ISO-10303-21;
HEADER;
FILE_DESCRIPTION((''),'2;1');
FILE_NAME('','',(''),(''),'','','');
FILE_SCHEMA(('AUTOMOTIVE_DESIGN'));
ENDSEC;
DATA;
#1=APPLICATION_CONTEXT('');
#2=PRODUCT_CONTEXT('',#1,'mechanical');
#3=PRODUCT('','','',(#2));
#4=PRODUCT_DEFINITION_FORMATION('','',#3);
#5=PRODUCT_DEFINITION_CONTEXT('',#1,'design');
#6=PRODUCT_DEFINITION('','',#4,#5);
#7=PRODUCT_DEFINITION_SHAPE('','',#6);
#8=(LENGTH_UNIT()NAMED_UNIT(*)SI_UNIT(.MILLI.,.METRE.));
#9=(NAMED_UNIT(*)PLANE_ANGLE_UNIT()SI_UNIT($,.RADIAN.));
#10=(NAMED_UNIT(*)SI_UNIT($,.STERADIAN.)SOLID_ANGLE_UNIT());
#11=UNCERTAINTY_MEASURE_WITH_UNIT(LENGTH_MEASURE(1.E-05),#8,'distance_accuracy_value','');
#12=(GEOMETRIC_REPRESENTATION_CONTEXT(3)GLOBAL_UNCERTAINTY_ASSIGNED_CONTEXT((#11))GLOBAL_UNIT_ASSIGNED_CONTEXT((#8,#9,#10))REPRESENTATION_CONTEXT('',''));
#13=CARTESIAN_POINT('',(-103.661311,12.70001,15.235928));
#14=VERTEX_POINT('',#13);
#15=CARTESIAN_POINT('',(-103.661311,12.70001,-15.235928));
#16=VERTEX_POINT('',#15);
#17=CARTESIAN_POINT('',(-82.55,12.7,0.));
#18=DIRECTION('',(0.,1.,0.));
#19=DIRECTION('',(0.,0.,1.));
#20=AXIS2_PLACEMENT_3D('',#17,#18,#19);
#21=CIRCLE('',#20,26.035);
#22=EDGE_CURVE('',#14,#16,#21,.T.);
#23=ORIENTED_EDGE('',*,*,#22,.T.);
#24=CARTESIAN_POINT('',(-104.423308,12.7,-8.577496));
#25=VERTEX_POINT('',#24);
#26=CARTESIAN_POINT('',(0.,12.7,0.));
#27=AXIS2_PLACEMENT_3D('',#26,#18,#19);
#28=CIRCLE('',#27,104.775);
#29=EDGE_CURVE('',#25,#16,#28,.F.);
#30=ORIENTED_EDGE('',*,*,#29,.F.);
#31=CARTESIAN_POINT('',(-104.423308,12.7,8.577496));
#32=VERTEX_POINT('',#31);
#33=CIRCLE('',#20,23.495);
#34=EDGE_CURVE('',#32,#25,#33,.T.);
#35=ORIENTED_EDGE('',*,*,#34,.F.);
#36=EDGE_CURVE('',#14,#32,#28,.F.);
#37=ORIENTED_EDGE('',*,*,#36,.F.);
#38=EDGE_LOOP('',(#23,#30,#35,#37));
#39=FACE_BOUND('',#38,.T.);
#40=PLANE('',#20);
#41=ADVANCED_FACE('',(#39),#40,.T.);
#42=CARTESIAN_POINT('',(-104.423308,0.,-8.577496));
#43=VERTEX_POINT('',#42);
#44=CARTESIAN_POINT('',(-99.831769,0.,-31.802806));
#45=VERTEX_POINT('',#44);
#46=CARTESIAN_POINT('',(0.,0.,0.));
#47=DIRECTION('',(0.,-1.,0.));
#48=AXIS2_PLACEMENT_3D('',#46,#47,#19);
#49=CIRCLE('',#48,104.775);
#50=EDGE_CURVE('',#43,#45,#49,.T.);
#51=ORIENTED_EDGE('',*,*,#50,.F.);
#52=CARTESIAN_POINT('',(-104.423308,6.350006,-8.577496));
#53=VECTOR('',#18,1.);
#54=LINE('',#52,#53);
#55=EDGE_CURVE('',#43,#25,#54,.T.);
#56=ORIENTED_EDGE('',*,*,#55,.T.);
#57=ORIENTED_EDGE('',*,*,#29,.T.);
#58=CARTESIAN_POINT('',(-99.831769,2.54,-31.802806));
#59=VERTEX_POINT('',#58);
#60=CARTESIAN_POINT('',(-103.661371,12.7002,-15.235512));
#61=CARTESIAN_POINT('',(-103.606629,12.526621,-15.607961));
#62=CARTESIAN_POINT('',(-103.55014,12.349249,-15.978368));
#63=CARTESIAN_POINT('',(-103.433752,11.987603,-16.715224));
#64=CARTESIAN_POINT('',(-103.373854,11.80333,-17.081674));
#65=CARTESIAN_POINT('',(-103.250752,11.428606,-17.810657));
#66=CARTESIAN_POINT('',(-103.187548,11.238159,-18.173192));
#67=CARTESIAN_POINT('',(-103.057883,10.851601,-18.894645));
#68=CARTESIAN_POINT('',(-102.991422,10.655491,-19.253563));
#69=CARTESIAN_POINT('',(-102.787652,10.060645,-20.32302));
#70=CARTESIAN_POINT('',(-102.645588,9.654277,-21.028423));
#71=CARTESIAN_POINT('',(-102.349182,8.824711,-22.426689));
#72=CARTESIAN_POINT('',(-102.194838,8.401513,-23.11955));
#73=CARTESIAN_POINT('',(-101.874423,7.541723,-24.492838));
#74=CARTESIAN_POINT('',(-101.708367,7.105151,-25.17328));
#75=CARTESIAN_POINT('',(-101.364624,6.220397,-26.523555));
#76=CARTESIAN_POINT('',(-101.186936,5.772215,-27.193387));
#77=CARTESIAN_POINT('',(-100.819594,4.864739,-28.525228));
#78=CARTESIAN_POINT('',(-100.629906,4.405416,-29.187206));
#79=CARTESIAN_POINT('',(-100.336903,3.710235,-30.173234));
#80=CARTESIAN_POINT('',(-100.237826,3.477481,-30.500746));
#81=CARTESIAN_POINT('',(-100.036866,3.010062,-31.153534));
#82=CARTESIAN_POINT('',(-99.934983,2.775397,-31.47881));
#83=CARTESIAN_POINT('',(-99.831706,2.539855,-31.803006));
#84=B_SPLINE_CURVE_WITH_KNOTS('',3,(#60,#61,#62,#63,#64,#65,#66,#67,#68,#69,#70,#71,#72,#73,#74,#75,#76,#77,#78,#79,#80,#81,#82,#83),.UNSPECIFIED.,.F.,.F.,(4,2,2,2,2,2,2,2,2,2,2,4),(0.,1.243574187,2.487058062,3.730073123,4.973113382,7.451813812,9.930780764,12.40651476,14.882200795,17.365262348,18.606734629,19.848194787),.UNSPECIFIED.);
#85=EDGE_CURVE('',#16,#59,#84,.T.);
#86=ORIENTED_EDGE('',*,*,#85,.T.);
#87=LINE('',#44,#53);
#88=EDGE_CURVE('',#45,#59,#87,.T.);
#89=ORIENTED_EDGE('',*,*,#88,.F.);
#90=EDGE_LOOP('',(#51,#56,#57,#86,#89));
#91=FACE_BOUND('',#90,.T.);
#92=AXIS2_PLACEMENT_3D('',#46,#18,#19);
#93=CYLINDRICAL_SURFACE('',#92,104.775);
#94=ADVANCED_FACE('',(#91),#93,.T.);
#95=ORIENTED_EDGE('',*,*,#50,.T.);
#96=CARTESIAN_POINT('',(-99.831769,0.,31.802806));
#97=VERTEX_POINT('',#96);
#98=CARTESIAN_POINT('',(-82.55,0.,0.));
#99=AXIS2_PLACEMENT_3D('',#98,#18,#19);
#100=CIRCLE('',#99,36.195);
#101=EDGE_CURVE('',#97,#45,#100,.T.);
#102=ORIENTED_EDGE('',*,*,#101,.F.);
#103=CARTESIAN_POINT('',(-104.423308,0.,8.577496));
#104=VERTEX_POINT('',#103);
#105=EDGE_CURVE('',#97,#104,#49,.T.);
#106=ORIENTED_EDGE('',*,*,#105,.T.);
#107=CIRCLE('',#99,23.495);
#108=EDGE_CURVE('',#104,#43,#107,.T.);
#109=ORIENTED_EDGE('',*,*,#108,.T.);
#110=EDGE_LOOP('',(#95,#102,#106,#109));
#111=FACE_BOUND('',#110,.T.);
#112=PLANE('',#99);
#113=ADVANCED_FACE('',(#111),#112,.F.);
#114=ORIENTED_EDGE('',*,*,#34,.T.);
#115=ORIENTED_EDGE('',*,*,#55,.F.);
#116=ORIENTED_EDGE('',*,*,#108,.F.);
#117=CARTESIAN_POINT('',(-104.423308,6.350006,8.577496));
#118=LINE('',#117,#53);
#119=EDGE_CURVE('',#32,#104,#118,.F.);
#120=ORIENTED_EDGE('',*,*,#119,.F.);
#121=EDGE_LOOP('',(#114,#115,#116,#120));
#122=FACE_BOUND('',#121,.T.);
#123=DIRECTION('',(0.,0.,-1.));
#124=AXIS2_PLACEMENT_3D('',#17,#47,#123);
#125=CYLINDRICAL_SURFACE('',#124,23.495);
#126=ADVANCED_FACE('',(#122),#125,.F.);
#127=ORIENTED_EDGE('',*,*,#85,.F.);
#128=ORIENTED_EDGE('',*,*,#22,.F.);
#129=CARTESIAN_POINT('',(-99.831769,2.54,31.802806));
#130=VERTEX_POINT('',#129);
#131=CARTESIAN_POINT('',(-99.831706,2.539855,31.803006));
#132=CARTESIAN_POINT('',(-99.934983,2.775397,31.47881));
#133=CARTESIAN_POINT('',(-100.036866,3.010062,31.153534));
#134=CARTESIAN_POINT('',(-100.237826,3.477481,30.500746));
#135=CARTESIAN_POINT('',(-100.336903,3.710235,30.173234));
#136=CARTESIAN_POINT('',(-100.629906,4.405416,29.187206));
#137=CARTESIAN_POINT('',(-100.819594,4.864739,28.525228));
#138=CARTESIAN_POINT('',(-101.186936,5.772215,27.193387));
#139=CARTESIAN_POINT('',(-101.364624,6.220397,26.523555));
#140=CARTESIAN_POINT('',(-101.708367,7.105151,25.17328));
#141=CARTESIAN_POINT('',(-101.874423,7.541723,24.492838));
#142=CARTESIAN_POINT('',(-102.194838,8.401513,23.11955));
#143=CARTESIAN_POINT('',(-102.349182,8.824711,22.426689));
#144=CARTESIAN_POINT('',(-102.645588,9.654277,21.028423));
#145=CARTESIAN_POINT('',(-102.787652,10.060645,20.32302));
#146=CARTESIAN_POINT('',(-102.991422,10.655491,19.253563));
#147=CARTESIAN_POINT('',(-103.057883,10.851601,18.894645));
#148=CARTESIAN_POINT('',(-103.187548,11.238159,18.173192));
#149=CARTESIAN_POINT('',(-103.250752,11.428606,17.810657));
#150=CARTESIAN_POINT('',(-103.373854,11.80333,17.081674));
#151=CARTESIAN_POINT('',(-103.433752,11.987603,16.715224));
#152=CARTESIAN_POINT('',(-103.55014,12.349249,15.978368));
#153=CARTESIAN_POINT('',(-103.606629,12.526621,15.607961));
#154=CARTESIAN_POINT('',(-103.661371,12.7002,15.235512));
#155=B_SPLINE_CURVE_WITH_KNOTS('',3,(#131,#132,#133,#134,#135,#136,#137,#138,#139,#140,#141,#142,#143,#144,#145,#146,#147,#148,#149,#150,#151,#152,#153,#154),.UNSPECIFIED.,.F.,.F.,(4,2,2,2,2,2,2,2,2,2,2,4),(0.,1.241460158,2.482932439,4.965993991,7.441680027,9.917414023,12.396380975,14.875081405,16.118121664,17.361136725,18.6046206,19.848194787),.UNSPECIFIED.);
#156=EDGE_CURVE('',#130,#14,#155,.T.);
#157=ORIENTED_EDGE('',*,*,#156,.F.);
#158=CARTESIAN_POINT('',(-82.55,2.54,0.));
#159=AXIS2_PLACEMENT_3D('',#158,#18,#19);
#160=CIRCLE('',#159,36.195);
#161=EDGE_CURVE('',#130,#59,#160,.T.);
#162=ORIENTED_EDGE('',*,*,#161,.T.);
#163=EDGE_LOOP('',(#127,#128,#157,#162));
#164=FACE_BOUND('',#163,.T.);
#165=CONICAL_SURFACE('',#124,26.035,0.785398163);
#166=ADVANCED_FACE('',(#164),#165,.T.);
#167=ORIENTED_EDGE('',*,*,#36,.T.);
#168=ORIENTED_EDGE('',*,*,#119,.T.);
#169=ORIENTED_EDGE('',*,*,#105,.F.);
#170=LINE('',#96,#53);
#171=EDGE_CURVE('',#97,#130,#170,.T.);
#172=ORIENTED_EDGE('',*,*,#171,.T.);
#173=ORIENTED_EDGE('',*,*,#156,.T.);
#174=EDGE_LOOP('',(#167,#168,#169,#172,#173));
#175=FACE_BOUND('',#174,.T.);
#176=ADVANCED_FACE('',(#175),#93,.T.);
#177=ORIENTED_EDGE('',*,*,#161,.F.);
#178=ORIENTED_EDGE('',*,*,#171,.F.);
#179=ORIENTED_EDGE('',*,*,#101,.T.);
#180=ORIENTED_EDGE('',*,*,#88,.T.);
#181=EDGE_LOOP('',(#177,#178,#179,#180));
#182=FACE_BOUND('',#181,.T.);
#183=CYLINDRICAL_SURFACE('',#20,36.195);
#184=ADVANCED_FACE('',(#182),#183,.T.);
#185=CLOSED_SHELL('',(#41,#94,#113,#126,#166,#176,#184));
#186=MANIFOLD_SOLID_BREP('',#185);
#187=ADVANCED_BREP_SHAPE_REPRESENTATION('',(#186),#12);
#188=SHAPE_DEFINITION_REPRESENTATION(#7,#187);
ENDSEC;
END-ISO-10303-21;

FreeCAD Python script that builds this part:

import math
import FreeCAD as App
import Part
import Sketcher
Q = App.Units.Quantity


def add_polygon(sketch, points):
    """Adds a closed chain of lines whose ends are joined by coincident constraints."""
    first, n = sketch.GeometryCount, len(points)
    for a, b in zip(points, points[1:] + points[:1]):
        sketch.addGeometry(Part.LineSegment(App.Vector(*a, 0), App.Vector(*b, 0)), False)
    for i in range(n):
        sketch.addConstraint(Sketcher.Constraint("Coincident", first + i, 2, first + (i + 1) % n, 1))

doc = App.newDocument("Part")
body = doc.addObject("PartDesign::Body", "Body")

# Sketch on XZ plane
sketch1 = body.newObject("Sketcher::SketchObject", "Sketch")
sketch1.AttachmentSupport = (doc.getObject("XZ_Plane"), [""])
sketch1.MapMode = "FlatFace"
sketch1.addGeometry([
    Part.Circle(App.Vector(-82.55, 0, 0), App.Vector(0, 0, 1), 26.035),
    Part.Circle(App.Vector(-82.55, 0, 0), App.Vector(0, 0, 1), 23.495),
], False)
sketch1.addConstraint([
    Sketcher.Constraint("Coincident", 1, 3, 0, 3),
    Sketcher.Constraint("PointOnObject", 0, 3, -1),
    Sketcher.Constraint("Diameter", 0, Q("2.05 in")),
    Sketcher.Constraint("Diameter", 1, Q("1.85 in")),
    Sketcher.Constraint("DistanceX", 0, 3, -1, 1, Q("3.25 in")),
])
pad1 = body.newObject("PartDesign::Pad", "Pad")
pad1.Profile = sketch1
pad1.Length = Q("0.5 in")
pad1.Reversed = True

# Sketch on YZ plane
sketch2 = body.newObject("Sketcher::SketchObject", "Sketch001")
sketch2.AttachmentSupport = (doc.getObject("YZ_Plane"), [""])
sketch2.MapMode = "FlatFace"
sketch2.AttachmentOffset = App.Placement(App.Vector(0, 0, -3.25 * 25.4), App.Rotation())
add_polygon(sketch2, [(0, -36.195), (0, -26.035), (12.7, -26.035), (2.54, -36.195)])  # lines 0-3
sketch2.addConstraint([
    Sketcher.Constraint("Vertical", 0),
    Sketcher.Constraint("Horizontal", 1),
    Sketcher.Constraint("Horizontal", 3),
    Sketcher.Constraint("PointOnObject", 0, 2, -2),
    Sketcher.Constraint("DistanceX", 1, 1, 1, 2, Q("0.5 in")),
    Sketcher.Constraint("DistanceX", 3, 2, 3, 1, Q("0.1 in")),
    Sketcher.Constraint("DistanceY", 0, 1, 0, 2, Q("0.4 in")),
    Sketcher.Constraint("DistanceY", 0, 2, -1, 1, Q("1.025 in")),
])
revolution = body.newObject("PartDesign::Revolution", "Revolution")
revolution.Profile = sketch2
revolution.ReferenceAxis = (sketch2, ["H_Axis"])
revolution.Angle = 360

# Sketch on XZ plane
sketch3 = body.newObject("Sketcher::SketchObject", "Sketch002")
sketch3.AttachmentSupport = (doc.getObject("XZ_Plane"), [""])
sketch3.MapMode = "FlatFace"
sketch3.AttachmentOffset = App.Placement(App.Vector(0, 0, -0.5 * 25.4), App.Rotation())
sketch3.addGeometry([
    Part.ArcOfCircle(Part.Circle(App.Vector(0, 0, 0), App.Vector(0, 0, 1), 104.775), math.radians(162.329994), math.radians(197.670006)),
    Part.ArcOfCircle(Part.Circle(App.Vector(-82.55, 0, 0), App.Vector(0, 0, 1), 36.195), math.radians(118.51983), math.radians(241.48017)),
], False)
sketch3.addConstraint([
    Sketcher.Constraint("Coincident", 0, 1, 1, 1),
    Sketcher.Constraint("Coincident", 1, 2, 0, 2),
    Sketcher.Constraint("Coincident", 0, 3, -1, 1),
    Sketcher.Constraint("PointOnObject", 1, 3, -1),
    Sketcher.Constraint("Radius", 0, Q("4.125 in")),
    Sketcher.Constraint("Radius", 1, Q("1.425 in")),
    Sketcher.Constraint("DistanceX", 1, 3, -1, 1, Q("3.25 in")),
])
pocket1 = body.newObject("PartDesign::Pocket", "Pocket")
pocket1.Profile = sketch3
pocket1.Type = "ThroughAll"
pocket1.Midplane = True

doc.recompute()
